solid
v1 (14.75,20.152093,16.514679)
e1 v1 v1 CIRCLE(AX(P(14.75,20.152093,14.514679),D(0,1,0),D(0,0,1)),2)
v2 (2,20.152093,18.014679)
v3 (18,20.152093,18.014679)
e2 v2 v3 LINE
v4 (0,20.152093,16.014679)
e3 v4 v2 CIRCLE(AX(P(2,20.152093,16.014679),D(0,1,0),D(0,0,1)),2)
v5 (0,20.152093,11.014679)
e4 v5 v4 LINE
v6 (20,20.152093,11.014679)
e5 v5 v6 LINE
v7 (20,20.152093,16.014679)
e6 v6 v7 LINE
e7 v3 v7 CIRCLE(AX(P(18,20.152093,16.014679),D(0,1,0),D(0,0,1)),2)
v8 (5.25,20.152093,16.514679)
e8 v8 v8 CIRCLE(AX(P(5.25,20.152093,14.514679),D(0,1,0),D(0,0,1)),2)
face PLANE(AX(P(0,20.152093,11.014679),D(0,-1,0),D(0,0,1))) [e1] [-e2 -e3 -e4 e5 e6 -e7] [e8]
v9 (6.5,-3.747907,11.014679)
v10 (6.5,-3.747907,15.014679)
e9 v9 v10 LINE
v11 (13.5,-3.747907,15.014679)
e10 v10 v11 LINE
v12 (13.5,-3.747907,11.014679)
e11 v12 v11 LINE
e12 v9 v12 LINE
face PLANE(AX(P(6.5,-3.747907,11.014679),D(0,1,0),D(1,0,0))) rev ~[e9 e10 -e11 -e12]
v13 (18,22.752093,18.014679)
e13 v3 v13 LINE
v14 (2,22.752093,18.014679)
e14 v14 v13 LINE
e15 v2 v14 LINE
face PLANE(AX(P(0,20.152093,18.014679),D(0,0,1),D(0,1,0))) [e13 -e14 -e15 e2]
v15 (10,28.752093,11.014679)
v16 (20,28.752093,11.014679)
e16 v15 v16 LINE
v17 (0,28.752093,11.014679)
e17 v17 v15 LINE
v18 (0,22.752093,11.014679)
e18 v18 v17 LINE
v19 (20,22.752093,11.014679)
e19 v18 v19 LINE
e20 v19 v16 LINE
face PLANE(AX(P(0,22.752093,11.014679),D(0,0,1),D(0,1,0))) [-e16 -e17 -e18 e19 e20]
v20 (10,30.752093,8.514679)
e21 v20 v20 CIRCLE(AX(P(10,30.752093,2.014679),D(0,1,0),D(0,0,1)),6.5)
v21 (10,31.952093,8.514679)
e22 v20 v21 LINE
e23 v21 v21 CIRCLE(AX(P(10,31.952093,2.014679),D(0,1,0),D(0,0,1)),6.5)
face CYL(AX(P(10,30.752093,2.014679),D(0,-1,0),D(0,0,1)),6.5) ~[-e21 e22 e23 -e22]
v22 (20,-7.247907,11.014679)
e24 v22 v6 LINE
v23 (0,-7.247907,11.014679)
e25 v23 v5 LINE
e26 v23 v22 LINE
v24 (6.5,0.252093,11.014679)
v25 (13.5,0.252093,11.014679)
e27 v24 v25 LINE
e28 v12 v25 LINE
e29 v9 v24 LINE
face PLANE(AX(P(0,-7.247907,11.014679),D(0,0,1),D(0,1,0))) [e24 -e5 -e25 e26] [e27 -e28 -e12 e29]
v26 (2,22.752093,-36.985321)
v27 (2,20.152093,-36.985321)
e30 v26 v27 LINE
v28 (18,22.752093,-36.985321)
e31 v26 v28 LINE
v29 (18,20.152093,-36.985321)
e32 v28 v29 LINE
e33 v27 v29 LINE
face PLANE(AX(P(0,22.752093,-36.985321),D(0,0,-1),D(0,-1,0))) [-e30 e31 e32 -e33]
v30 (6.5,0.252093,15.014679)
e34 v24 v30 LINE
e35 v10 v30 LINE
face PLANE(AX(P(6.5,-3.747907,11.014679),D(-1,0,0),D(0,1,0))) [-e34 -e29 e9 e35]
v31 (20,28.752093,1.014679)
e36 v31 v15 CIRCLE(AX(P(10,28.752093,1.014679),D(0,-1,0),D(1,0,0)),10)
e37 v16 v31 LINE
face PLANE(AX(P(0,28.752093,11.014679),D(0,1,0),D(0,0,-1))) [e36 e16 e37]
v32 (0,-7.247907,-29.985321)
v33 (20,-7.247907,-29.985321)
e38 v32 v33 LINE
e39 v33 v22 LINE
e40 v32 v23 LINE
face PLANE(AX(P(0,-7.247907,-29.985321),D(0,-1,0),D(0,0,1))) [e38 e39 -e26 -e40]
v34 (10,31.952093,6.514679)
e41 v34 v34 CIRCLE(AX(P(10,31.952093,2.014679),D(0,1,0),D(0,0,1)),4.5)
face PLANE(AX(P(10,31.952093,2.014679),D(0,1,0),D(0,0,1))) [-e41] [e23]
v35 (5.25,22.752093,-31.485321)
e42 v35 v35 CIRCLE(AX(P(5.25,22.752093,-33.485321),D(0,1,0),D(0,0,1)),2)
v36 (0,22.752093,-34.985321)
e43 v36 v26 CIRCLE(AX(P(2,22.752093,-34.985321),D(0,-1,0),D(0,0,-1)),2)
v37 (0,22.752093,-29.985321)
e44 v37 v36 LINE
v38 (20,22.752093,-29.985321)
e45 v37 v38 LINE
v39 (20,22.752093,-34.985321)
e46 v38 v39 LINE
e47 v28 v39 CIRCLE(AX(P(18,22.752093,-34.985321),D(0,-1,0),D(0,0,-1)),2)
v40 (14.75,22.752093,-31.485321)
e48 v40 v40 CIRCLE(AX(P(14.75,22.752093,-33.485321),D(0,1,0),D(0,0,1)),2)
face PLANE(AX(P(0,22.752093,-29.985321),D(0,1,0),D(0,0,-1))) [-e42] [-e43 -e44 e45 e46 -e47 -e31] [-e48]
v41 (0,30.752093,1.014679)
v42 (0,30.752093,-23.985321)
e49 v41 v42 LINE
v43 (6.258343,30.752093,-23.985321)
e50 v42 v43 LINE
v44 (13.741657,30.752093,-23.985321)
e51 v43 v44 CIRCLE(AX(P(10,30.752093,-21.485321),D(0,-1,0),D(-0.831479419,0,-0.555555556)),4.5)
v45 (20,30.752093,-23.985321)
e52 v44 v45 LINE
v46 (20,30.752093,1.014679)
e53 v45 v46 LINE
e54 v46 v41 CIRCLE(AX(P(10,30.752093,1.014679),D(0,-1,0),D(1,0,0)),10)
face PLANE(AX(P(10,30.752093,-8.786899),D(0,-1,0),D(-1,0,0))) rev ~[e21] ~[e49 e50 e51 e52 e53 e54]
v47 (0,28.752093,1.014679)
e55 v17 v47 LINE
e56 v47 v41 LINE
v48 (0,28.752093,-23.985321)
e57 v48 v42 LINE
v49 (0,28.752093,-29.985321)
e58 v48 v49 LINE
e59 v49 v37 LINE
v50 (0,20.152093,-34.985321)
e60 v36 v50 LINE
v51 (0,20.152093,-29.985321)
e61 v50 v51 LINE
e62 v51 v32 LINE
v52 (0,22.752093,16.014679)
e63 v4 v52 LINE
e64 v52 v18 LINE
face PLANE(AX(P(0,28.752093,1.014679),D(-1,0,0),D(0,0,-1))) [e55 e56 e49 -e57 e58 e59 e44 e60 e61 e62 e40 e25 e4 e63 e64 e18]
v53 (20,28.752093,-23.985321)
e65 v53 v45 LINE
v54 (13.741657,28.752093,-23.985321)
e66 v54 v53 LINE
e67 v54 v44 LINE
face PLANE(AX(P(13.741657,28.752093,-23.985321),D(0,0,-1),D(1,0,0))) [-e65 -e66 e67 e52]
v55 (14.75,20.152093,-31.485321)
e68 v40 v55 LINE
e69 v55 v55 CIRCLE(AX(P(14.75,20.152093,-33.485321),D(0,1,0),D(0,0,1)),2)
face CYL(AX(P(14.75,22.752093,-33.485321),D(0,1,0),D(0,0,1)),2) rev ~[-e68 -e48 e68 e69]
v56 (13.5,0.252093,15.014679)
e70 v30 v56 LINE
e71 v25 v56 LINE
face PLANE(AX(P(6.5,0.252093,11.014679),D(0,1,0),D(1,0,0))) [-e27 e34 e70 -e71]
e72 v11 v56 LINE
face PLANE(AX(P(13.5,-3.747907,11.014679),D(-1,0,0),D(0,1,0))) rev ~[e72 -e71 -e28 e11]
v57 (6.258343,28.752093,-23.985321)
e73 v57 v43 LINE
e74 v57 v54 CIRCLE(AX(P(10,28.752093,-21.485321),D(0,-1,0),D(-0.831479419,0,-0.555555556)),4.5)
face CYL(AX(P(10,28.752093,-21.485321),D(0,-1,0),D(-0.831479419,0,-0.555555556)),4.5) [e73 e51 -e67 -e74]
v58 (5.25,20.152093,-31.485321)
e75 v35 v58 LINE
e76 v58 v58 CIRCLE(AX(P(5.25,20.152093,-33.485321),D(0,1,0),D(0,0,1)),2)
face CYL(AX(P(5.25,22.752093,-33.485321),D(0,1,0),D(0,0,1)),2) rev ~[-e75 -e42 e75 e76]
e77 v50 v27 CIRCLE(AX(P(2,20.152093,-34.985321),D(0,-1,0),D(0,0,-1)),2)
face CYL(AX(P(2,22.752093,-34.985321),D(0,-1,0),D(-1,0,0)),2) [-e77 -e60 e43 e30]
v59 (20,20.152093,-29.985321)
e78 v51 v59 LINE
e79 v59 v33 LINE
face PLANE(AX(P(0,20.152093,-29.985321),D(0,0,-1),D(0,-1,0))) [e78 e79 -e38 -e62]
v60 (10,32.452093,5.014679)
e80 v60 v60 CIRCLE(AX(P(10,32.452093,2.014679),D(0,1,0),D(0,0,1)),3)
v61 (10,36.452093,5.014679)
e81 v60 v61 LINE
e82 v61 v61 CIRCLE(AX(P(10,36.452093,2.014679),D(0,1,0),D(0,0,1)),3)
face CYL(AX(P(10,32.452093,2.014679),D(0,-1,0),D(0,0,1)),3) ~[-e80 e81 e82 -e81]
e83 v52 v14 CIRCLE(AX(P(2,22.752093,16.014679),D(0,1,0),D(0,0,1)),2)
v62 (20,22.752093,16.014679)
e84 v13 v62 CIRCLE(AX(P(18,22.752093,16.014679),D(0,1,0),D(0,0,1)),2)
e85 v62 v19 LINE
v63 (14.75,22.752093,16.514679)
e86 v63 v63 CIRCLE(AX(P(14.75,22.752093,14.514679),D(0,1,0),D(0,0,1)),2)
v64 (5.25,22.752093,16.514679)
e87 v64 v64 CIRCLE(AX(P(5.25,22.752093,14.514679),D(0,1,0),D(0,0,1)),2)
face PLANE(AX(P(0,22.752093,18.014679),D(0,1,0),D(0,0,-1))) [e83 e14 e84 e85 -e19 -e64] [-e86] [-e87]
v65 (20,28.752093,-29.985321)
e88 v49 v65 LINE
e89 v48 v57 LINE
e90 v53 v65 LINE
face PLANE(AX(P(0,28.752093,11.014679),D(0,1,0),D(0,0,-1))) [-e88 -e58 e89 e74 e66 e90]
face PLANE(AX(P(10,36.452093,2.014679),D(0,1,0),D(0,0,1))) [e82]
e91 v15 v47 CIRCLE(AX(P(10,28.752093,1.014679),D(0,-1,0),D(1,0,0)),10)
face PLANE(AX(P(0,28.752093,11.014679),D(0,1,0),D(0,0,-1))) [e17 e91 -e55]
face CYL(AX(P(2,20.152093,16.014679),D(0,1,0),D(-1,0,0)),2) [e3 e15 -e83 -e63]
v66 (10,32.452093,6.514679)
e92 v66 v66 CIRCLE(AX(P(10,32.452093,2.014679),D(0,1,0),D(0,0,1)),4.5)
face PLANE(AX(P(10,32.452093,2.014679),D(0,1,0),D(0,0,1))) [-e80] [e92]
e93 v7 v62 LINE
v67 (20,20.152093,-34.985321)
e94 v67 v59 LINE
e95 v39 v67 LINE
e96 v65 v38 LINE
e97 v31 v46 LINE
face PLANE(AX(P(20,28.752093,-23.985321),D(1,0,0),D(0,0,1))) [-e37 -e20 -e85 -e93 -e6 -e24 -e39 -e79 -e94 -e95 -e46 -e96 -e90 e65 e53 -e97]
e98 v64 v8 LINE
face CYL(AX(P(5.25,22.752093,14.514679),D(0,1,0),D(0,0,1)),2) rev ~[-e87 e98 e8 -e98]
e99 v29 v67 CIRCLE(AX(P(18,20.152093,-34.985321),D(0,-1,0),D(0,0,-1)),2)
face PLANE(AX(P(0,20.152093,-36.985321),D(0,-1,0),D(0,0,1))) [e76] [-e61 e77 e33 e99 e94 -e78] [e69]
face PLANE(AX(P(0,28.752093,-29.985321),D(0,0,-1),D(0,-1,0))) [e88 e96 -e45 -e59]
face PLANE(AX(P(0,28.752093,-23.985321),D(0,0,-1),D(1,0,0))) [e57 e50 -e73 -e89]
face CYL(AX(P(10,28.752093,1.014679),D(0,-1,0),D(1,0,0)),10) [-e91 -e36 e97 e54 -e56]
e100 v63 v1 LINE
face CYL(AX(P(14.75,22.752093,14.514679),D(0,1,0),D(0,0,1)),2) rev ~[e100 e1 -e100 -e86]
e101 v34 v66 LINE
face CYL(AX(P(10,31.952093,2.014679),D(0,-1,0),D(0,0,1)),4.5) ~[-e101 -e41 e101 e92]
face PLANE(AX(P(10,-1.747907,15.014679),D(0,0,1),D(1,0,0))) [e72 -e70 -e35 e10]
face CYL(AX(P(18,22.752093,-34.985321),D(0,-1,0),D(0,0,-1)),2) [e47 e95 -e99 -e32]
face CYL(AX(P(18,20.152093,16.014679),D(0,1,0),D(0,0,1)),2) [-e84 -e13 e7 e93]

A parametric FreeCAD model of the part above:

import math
import FreeCAD as App
import Part
import Sketcher

V = App.Vector
Q = App.Units.Quantity


def edges_at(feature, points):
    """Names of the edges that pass closest to the given points."""
    edges = feature.Shape.Edges
    near = lambda p: min(range(len(edges)), key=lambda i: edges[i].distToShape(Part.Vertex(*p))[0])
    return sorted({f"Edge{near(p) + 1}" for p in points})


def add_polygon(sketch, points):
    """Adds a closed chain of lines whose ends are joined by coincident constraints."""
    first, n = sketch.GeometryCount, len(points)
    for a, b in zip(points, points[1:] + points[:1]):
        sketch.addGeometry(Part.LineSegment(App.Vector(*a, 0), App.Vector(*b, 0)), False)
    for i in range(n):
        sketch.addConstraint(Sketcher.Constraint("Coincident", first + i, 2, first + (i + 1) % n, 1))

doc = App.newDocument("Part")
body = doc.addObject("PartDesign::Body", "Body")

sketch1 = body.newObject("Sketcher::SketchObject", "Sketch")
sketch1.AttachmentSupport = (doc.getObject("YZ_Plane"), [""])
sketch1.MapMode = "FlatFace"
add_polygon(sketch1, [(28.8, 11), (22.8, 11), (22.8, 18), (20.2, 18), (20.2, 11), (-7.2, 11), (-7.2, -30), (20.2, -30), (20.2, -37), (22.8, -37), (22.8, -30), (28.8, -30)])
sketch1.addConstraint([
    Sketcher.Constraint("Horizontal", 0),
    Sketcher.Constraint("Vertical", 1),
    Sketcher.Constraint("Horizontal", 2),
    Sketcher.Constraint("Vertical", 3),
    Sketcher.Constraint("Horizontal", 4),
    Sketcher.Constraint("Vertical", 5),
    Sketcher.Constraint("Horizontal", 6),
    Sketcher.Constraint("Vertical", 7),
    Sketcher.Constraint("Horizontal", 8),
    Sketcher.Constraint("Vertical", 9),
    Sketcher.Constraint("Horizontal", 10),
    Sketcher.Constraint("Vertical", 11),
    Sketcher.Constraint("Horizontal", 0, 2, 3, 2),
    Sketcher.Constraint("Horizontal", 6, 2, 9, 2),
    Sketcher.Constraint("Vertical", 3, 2, 6, 2),
    Sketcher.Constraint("Vertical", 1, 2, 8, 2),
    Sketcher.Constraint("Equal", 3, 7),
    Sketcher.Constraint("DistanceX", 0, 2, 0, 1, Q("6 mm")),
    Sketcher.Constraint("DistanceY", 1, 1, 1, 2, Q("7 mm")),
    Sketcher.Constraint("DistanceY", 5, 2, 5, 1, Q("41 mm")),
    Sketcher.Constraint("DistanceX", 2, 2, 2, 1, Q("2.6 mm")),
    Sketcher.Constraint("DistanceX", 4, 2, 4, 1, Q("27.4 mm")),
    Sketcher.Constraint("DistanceY", -1, 1, 0, 2, Q("11.014679 mm")),
    Sketcher.Constraint("DistanceX", -1, 1, 0, 2, Q("22.752093 mm")),
])
pad1 = body.newObject("PartDesign::Pad", "Pad")
pad1.Profile = sketch1
pad1.Length = 20

sketch2 = body.newObject("Sketcher::SketchObject", "Sketch001")
sketch2.AttachmentSupport = (doc.getObject("XZ_Plane"), [""])
sketch2.MapMode = "FlatFace"
sketch2.AttachmentOffset = App.Placement(V(0, 0, -28.752093), App.Rotation())
sketch2.addGeometry([
    Part.LineSegment(V(0, -24, 0), V(0, 1, 0)),
    Part.ArcOfCircle(Part.Circle(V(10, 1, 0), V(0, 0, 1), 10), math.radians(0), math.radians(180)),
    Part.LineSegment(V(20, 1, 0), V(20, -24, 0)),
    Part.LineSegment(V(20, -24, 0), V(13.7, -24, 0)),
    Part.ArcOfCircle(Part.Circle(V(10, -21.5, 0), V(0, 0, 1), 4.5), math.radians(-146), math.radians(-34)),
    Part.LineSegment(V(6.3, -24, 0), V(0, -24, 0)),
], False)
sketch2.addConstraint([
    Sketcher.Constraint("Tangent", 0, 2, 1, 2),
    Sketcher.Constraint("Tangent", 1, 1, 2, 1),
    Sketcher.Constraint("Coincident", 2, 2, 3, 1),
    Sketcher.Constraint("Coincident", 3, 2, 4, 2),
    Sketcher.Constraint("Coincident", 4, 1, 5, 1),
    Sketcher.Constraint("Coincident", 5, 2, 0, 1),
    Sketcher.Constraint("Vertical", 0),
    Sketcher.Constraint("Vertical", 2),
    Sketcher.Constraint("Horizontal", 3),
    Sketcher.Constraint("Horizontal", 5),
    Sketcher.Constraint("PointOnObject", 0, 2, -2),
    Sketcher.Constraint("Horizontal", 3, 2, 4, 1),
    Sketcher.Constraint("Vertical", 1, 3, 4, 3),
    Sketcher.Constraint("Radius", 1, Q("10 mm")),
    Sketcher.Constraint("Radius", 4, Q("4.5 mm")),
    Sketcher.Constraint("DistanceY", 0, 1, 0, 2, Q("25 mm")),
    Sketcher.Constraint("DistanceY", 4, 3, 1, 3, Q("22.5 mm")),
    Sketcher.Constraint("DistanceY", -1, 1, 1, 3, Q("1.014679 mm")),
])
pad2 = body.newObject("PartDesign::Pad", "Pad001")
pad2.Profile = sketch2
pad2.Length = 2
pad2.Reversed = True

sketch3 = body.newObject("Sketcher::SketchObject", "Sketch002")
sketch3.AttachmentSupport = (doc.getObject("XZ_Plane"), [""])
sketch3.MapMode = "FlatFace"
sketch3.AttachmentOffset = App.Placement(V(0, 0, -30.752093), App.Rotation())
sketch3.addGeometry(Part.Circle(V(10, 2, 0), V(0, 0, 1), 6), False)
sketch3.addConstraint([
    Sketcher.Constraint("Diameter", 0, Q("13 mm")),
    Sketcher.Constraint("DistanceX", -1, 1, 0, 3, Q("10 mm")),
    Sketcher.Constraint("DistanceY", -1, 1, 0, 3, Q("2.014679 mm")),
])
pad3 = body.newObject("PartDesign::Pad", "Pad002")
pad3.Profile = sketch3
pad3.Length = 1.2
pad3.Reversed = True

sketch4 = body.newObject("Sketcher::SketchObject", "Sketch003")
sketch4.AttachmentSupport = (doc.getObject("XZ_Plane"), [""])
sketch4.MapMode = "FlatFace"
sketch4.AttachmentOffset = App.Placement(V(0, 0, -22.752093), App.Rotation())
sketch4.addGeometry(Part.Circle(V(5.2, 14.5, 0), V(0, 0, 1), 2), False)
sketch4.addConstraint([
    Sketcher.Constraint("Diameter", 0, Q("4 mm")),
    Sketcher.Constraint("DistanceX", -1, 1, 0, 3, Q("5.25 mm")),
    Sketcher.Constraint("DistanceY", -1, 1, 0, 3, Q("14.514679 mm")),
])
pocket1 = body.newObject("PartDesign::Pocket", "Pocket")
pocket1.Profile = sketch4
pocket1.Type = "UpToFirst"
pocket1.Reversed = True

sketch5 = body.newObject("Sketcher::SketchObject", "Sketch004")
sketch5.AttachmentSupport = (doc.getObject("XZ_Plane"), [""])
sketch5.MapMode = "FlatFace"
sketch5.AttachmentOffset = App.Placement(V(0, 0, -22.752093), App.Rotation())
sketch5.addGeometry(Part.Circle(V(14.8, 14.5, 0), V(0, 0, 1), 2), False)
sketch5.addConstraint([
    Sketcher.Constraint("Diameter", 0, Q("4 mm")),
    Sketcher.Constraint("DistanceX", -1, 1, 0, 3, Q("14.75 mm")),
    Sketcher.Constraint("DistanceY", -1, 1, 0, 3, Q("14.514679 mm")),
])
pocket2 = body.newObject("PartDesign::Pocket", "Pocket001")
pocket2.Profile = sketch5
pocket2.Type = "UpToFirst"
pocket2.Reversed = True

sketch6 = body.newObject("Sketcher::SketchObject", "Sketch005")
sketch6.AttachmentSupport = (doc.getObject("XZ_Plane"), [""])
sketch6.MapMode = "FlatFace"
sketch6.AttachmentOffset = App.Placement(V(0, 0, -22.752093), App.Rotation())
sketch6.addGeometry(Part.Circle(V(14.8, -33.5, 0), V(0, 0, 1), 2), False)
sketch6.addConstraint([
    Sketcher.Constraint("Diameter", 0, Q("4 mm")),
    Sketcher.Constraint("DistanceX", -1, 1, 0, 3, Q("14.75 mm")),
    Sketcher.Constraint("DistanceY", 0, 3, -1, 1, Q("33.485321 mm")),
])
pocket3 = body.newObject("PartDesign::Pocket", "Pocket002")
pocket3.Profile = sketch6
pocket3.Type = "UpToFirst"
pocket3.Reversed = True

sketch7 = body.newObject("Sketcher::SketchObject", "Sketch006")
sketch7.AttachmentSupport = (doc.getObject("XZ_Plane"), [""])
sketch7.MapMode = "FlatFace"
sketch7.AttachmentOffset = App.Placement(V(0, 0, -22.752093), App.Rotation())
sketch7.addGeometry(Part.Circle(V(5.2, -33.5, 0), V(0, 0, 1), 2), False)
sketch7.addConstraint([
    Sketcher.Constraint("Diameter", 0, Q("4 mm")),
    Sketcher.Constraint("DistanceX", -1, 1, 0, 3, Q("5.25 mm")),
    Sketcher.Constraint("DistanceY", 0, 3, -1, 1, Q("33.485321 mm")),
])
pocket4 = body.newObject("PartDesign::Pocket", "Pocket003")
pocket4.Profile = sketch7
pocket4.Type = "UpToFirst"
pocket4.Reversed = True

sketch8 = body.newObject("Sketcher::SketchObject", "Sketch007")
sketch8.AttachmentSupport = (doc.getObject("XY_Plane"), [""])
sketch8.MapMode = "FlatFace"
sketch8.AttachmentOffset = App.Placement(V(0, 0, 11.014679), App.Rotation())
add_polygon(sketch8, [(6.5, 0.3), (6.5, -3.7), (13.5, -3.7), (13.5, 0.3)])
sketch8.addConstraint([
    Sketcher.Constraint("Vertical", 0),
    Sketcher.Constraint("Horizontal", 1),
    Sketcher.Constraint("Vertical", 2),
    Sketcher.Constraint("Horizontal", 3),
    Sketcher.Constraint("DistanceX", 1, 1, 1, 2, Q("7 mm")),
    Sketcher.Constraint("DistanceY", 0, 2, 0, 1, Q("4 mm")),
    Sketcher.Constraint("DistanceX", -1, 1, 0, 2, Q("6.5 mm")),
    Sketcher.Constraint("DistanceY", 0, 2, -1, 1, Q("3.747907 mm")),
])
pad4 = body.newObject("PartDesign::Pad", "Pad003")
pad4.Profile = sketch8
pad4.Length = 4

sketch9 = body.newObject("Sketcher::SketchObject", "Sketch008")
sketch9.AttachmentSupport = (doc.getObject("XZ_Plane"), [""])
sketch9.MapMode = "FlatFace"
sketch9.AttachmentOffset = App.Placement(V(0, 0, -31.952093), App.Rotation())
sketch9.addGeometry(Part.Circle(V(10, 2, 0), V(0, 0, 1), 4.5), False)
sketch9.addConstraint([
    Sketcher.Constraint("Diameter", 0, Q("9 mm")),
    Sketcher.Constraint("DistanceX", -1, 1, 0, 3, Q("10 mm")),
    Sketcher.Constraint("DistanceY", -1, 1, 0, 3, Q("2.014679 mm")),
])
pad5 = body.newObject("PartDesign::Pad", "Pad004")
pad5.Profile = sketch9
pad5.Length = 0.5
pad5.Reversed = True

sketch10 = body.newObject("Sketcher::SketchObject", "Sketch009")
sketch10.AttachmentSupport = (doc.getObject("XZ_Plane"), [""])
sketch10.MapMode = "FlatFace"
sketch10.AttachmentOffset = App.Placement(V(0, 0, -32.452093), App.Rotation())
sketch10.addGeometry(Part.Circle(V(10, 2, 0), V(0, 0, 1), 3), False)
sketch10.addConstraint([
    Sketcher.Constraint("Diameter", 0, Q("6 mm")),
    Sketcher.Constraint("DistanceX", -1, 1, 0, 3, Q("10 mm")),
    Sketcher.Constraint("DistanceY", -1, 1, 0, 3, Q("2.014679 mm")),
])
pad6 = body.newObject("PartDesign::Pad", "Pad005")
pad6.Profile = sketch10
pad6.Length = 4
pad6.Reversed = True
doc.recompute()

fillet = body.newObject("PartDesign::Fillet", "Fillet")
fillet.Base = (pad6, edges_at(pad6, [
    (0, 21.452, 18.015),
    (0, 21.452, -36.985),
    (20, 21.452, -36.985),
    (20, 21.452, 18.015),
]))
fillet.Radius = 2

doc.recompute()
